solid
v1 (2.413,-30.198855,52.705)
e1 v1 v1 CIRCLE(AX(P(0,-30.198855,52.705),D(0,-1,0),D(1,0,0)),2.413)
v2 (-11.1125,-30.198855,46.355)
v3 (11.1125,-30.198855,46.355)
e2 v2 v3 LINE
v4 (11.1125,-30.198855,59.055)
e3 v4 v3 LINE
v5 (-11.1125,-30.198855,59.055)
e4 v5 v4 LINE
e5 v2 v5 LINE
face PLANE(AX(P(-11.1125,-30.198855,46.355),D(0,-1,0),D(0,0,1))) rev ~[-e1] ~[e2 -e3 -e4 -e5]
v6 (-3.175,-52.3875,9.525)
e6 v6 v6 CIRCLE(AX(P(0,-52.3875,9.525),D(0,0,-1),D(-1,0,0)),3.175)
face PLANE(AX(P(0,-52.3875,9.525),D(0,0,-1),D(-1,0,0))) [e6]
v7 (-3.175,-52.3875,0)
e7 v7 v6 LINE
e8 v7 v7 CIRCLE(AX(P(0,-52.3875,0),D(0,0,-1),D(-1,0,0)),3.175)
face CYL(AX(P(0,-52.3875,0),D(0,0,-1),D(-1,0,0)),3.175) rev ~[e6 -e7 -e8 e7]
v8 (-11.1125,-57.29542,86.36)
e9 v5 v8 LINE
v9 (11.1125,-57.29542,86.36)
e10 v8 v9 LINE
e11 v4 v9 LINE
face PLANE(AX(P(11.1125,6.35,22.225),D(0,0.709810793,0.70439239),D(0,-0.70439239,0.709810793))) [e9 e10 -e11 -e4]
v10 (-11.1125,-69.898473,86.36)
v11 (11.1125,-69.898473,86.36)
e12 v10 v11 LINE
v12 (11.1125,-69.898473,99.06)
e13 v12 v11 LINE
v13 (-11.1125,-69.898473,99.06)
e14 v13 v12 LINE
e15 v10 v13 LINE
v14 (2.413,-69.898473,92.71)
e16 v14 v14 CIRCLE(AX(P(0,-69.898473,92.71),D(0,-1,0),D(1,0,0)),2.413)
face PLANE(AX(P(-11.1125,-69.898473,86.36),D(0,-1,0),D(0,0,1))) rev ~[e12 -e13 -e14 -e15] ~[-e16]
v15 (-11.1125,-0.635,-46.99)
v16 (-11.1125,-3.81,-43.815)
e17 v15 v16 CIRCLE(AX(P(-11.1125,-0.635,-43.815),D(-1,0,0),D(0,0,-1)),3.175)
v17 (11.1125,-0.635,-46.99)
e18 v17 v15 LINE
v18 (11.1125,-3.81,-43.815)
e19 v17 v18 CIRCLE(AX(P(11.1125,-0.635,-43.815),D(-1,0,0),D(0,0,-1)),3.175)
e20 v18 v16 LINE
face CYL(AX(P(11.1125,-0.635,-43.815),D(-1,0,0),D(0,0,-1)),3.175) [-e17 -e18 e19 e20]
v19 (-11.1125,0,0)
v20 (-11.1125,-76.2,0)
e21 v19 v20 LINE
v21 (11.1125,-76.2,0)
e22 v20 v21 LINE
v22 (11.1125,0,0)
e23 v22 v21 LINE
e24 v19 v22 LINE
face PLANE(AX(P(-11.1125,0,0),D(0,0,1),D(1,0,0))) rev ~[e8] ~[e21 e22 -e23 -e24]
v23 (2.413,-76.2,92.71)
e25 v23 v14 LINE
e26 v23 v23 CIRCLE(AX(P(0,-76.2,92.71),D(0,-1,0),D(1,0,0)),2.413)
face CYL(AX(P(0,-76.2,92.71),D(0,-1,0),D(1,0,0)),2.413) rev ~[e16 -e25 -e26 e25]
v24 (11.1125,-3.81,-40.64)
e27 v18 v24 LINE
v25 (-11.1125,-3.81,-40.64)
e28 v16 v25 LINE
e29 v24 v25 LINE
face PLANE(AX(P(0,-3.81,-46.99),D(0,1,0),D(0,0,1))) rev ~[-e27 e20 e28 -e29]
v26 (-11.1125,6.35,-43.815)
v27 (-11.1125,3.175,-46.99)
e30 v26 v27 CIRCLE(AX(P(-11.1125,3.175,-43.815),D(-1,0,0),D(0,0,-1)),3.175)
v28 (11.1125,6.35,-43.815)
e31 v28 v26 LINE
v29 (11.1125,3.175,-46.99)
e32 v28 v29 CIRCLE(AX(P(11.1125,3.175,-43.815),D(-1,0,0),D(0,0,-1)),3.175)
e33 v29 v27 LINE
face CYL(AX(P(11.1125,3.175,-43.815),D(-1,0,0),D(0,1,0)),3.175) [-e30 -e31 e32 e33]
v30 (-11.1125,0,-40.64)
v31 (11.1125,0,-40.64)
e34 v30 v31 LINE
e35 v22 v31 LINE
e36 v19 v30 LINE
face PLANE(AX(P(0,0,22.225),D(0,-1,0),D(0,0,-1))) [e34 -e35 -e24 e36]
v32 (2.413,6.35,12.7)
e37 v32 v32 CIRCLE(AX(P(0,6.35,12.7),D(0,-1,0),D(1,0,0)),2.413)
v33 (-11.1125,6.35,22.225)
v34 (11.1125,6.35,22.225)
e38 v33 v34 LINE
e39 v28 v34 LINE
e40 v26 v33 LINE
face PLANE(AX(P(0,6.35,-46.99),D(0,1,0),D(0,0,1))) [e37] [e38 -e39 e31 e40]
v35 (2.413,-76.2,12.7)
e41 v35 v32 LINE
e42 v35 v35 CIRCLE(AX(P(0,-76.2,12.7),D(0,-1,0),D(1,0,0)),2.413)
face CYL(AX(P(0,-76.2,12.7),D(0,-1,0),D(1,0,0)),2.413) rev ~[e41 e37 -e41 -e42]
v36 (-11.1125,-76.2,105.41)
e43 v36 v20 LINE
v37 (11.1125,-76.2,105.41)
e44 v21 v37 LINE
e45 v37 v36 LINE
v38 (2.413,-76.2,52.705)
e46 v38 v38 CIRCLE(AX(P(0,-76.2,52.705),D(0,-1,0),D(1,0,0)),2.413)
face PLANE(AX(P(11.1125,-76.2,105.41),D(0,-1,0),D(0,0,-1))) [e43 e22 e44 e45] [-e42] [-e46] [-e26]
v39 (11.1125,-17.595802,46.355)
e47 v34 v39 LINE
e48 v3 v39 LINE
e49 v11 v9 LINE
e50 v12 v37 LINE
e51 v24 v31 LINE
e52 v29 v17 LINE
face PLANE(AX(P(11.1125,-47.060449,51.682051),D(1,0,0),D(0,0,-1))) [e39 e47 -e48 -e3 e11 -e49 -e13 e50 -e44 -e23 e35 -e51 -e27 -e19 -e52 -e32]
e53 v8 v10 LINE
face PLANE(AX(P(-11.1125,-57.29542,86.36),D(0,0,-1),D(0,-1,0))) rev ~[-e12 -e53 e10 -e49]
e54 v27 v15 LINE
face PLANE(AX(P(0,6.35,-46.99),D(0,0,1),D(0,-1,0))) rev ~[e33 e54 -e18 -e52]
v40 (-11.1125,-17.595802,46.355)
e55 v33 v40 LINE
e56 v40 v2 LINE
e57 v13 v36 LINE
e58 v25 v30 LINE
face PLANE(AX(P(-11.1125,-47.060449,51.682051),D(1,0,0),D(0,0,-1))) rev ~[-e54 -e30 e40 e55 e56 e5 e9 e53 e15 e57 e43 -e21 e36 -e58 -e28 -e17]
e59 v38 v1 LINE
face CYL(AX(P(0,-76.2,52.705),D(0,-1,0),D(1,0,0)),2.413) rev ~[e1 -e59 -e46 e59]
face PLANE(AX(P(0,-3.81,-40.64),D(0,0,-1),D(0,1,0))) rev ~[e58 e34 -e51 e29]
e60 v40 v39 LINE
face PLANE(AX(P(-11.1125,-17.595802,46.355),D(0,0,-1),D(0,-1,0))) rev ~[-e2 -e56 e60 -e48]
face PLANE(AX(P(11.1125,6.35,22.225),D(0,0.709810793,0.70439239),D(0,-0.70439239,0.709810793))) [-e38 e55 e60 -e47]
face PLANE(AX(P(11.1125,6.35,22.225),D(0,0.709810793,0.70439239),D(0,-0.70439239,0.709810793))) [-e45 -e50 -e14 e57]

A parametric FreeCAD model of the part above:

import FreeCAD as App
import Part
import Sketcher
Q = App.Units.Quantity


def edges_at(feature, points):
    """Names of the edges that pass closest to the given points."""
    edges = feature.Shape.Edges
    near = lambda p: min(range(len(edges)), key=lambda i: edges[i].distToShape(Part.Vertex(*p))[0])
    return sorted({f"Edge{near(p) + 1}" for p in points})

doc = App.newDocument("Part")
body = doc.addObject("PartDesign::Body", "Body")

sketch1 = body.newObject("Sketcher::SketchObject", "Sketch")
sketch1.AttachmentSupport = (doc.getObject("YZ_Plane"), [""])
sketch1.MapMode = "FlatFace"
sketch1.addGeometry(Part.LineSegment(App.Vector(6.35, -46.99, 0), App.Vector(6.35, 22.225, 0)), False)
sketch1.addGeometry(Part.LineSegment(App.Vector(6.35, 22.225, 0), App.Vector(0, 22.225, 0)), False)
sketch1.addGeometry(Part.LineSegment(App.Vector(0, 22.225, 0), App.Vector(0, -40.64, 0)), False)
sketch1.addGeometry(Part.LineSegment(App.Vector(0, -40.64, 0), App.Vector(-3.81, -40.64, 0)), False)
sketch1.addGeometry(Part.LineSegment(App.Vector(-3.81, -40.64, 0), App.Vector(-3.81, -46.99, 0)), False)
sketch1.addGeometry(Part.LineSegment(App.Vector(-3.81, -46.99, 0), App.Vector(6.35, -46.99, 0)), False)
sketch1.addConstraint(Sketcher.Constraint("Coincident", 0, 2, 1, 1))
sketch1.addConstraint(Sketcher.Constraint("Coincident", 1, 2, 2, 1))
sketch1.addConstraint(Sketcher.Constraint("Coincident", 2, 2, 3, 1))
sketch1.addConstraint(Sketcher.Constraint("Coincident", 3, 2, 4, 1))
sketch1.addConstraint(Sketcher.Constraint("Coincident", 4, 2, 5, 1))
sketch1.addConstraint(Sketcher.Constraint("Coincident", 5, 2, 0, 1))
sketch1.addConstraint(Sketcher.Constraint("Vertical", 0))
sketch1.addConstraint(Sketcher.Constraint("Horizontal", 1))
sketch1.addConstraint(Sketcher.Constraint("Vertical", 2))
sketch1.addConstraint(Sketcher.Constraint("Horizontal", 3))
sketch1.addConstraint(Sketcher.Constraint("Vertical", 4))
sketch1.addConstraint(Sketcher.Constraint("Horizontal", 5))
sketch1.addConstraint(Sketcher.Constraint("PointOnObject", 1, 2, -2))
sketch1.addConstraint(Sketcher.Constraint("Equal", 1, 4))
sketch1.addConstraint(Sketcher.Constraint("DistanceX", 5, 1, 5, 2, Q("0.4 in")))
sketch1.addConstraint(Sketcher.Constraint("DistanceX", 1, 2, 1, 1, Q("0.25 in")))
sketch1.addConstraint(Sketcher.Constraint("DistanceY", 2, 2, -1, 1, Q("1.6 in")))
sketch1.addConstraint(Sketcher.Constraint("DistanceY", 0, 1, 0, 2, Q("2.725 in")))
pad1 = body.newObject("PartDesign::Pad", "Pad")
pad1.Profile = sketch1
pad1.Length = Q("0.875 in")
pad1.Midplane = True

sketch2 = body.newObject("Sketcher::SketchObject", "Sketch001")
sketch2.AttachmentSupport = (doc.getObject("XZ_Plane"), [""])
sketch2.MapMode = "FlatFace"
sketch2.addGeometry(Part.LineSegment(App.Vector(-11.1125, 22.225, 0), App.Vector(-11.1125, 0, 0)), False)
sketch2.addGeometry(Part.LineSegment(App.Vector(-11.1125, 0, 0), App.Vector(11.1125, 0, 0)), False)
sketch2.addGeometry(Part.LineSegment(App.Vector(11.1125, 0, 0), App.Vector(11.1125, 22.225, 0)), False)
sketch2.addGeometry(Part.LineSegment(App.Vector(11.1125, 22.225, 0), App.Vector(-11.1125, 22.225, 0)), False)
sketch2.addConstraint(Sketcher.Constraint("Coincident", 0, 2, 1, 1))
sketch2.addConstraint(Sketcher.Constraint("Coincident", 1, 2, 2, 1))
sketch2.addConstraint(Sketcher.Constraint("Coincident", 2, 2, 3, 1))
sketch2.addConstraint(Sketcher.Constraint("Coincident", 3, 2, 0, 1))
sketch2.addConstraint(Sketcher.Constraint("Vertical", 0))
sketch2.addConstraint(Sketcher.Constraint("Horizontal", 1))
sketch2.addConstraint(Sketcher.Constraint("Vertical", 2))
sketch2.addConstraint(Sketcher.Constraint("Horizontal", 3))
sketch2.addConstraint(Sketcher.Constraint("Symmetric", 0, 2, 1, 2, -1, 1))
sketch2.addConstraint(Sketcher.Constraint("Equal", 3, 0))
sketch2.addConstraint(Sketcher.Constraint("DistanceX", 1, 1, 1, 2, Q("0.875 in")))
pad2 = body.newObject("PartDesign::Pad", "Pad001")
pad2.Profile = sketch2
pad2.Length = Q("3 in")

sketch3 = body.newObject("Sketcher::SketchObject", "Sketch002")
sketch3.AttachmentSupport = (doc.getObject("YZ_Plane"), [""])
sketch3.MapMode = "FlatFace"
sketch3.AttachmentOffset = App.Placement(App.Vector(0, 0, 0.4375 * 25.4), App.Rotation())
sketch3.addGeometry(Part.LineSegment(App.Vector(6.35, 22.225, 0), App.Vector(-76.2, 105.41, 0)), False)
sketch3.addGeometry(Part.LineSegment(App.Vector(-76.2, 105.41, 0), App.Vector(-76.2, 22.225, 0)), False)
sketch3.addGeometry(Part.LineSegment(App.Vector(-76.2, 22.225, 0), App.Vector(6.35, 22.225, 0)), False)
sketch3.addConstraint(Sketcher.Constraint("Coincident", 0, 2, 1, 1))
sketch3.addConstraint(Sketcher.Constraint("Coincident", 1, 2, 2, 1))
sketch3.addConstraint(Sketcher.Constraint("Coincident", 2, 2, 0, 1))
sketch3.addConstraint(Sketcher.Constraint("Vertical", 1))
sketch3.addConstraint(Sketcher.Constraint("Horizontal", 2))
sketch3.addConstraint(Sketcher.Constraint("DistanceX", 0, 2, -1, 1, Q("3 in")))
sketch3.addConstraint(Sketcher.Constraint("DistanceX", 2, 1, 2, 2, Q("3.25 in")))
sketch3.addConstraint(Sketcher.Constraint("DistanceY", 1, 2, 1, 1, Q("3.275 in")))
sketch3.addConstraint(Sketcher.Constraint("DistanceY", -1, 1, 0, 2, Q("4.15 in")))
pad3 = body.newObject("PartDesign::Pad", "Pad002")
pad3.Profile = sketch3
pad3.Length = Q("0.875 in")
pad3.Reversed = True

sketch4 = body.newObject("Sketcher::SketchObject", "Sketch003")
sketch4.AttachmentSupport = (doc.getObject("XZ_Plane"), [""])
sketch4.MapMode = "FlatFace"
sketch4.AttachmentOffset = App.Placement(App.Vector(0, 0, 3 * 25.4), App.Rotation())
sketch4.addGeometry(Part.Circle(App.Vector(0, 92.71, 0), App.Vector(0, 0, 1), 2.413), False)
sketch4.addGeometry(Part.Circle(App.Vector(0, 12.7, 0), App.Vector(0, 0, 1), 2.413), False)
sketch4.addGeometry(Part.Circle(App.Vector(0, 52.705, 0), App.Vector(0, 0, 1), 2.413), False)
sketch4.addConstraint(Sketcher.Constraint("Equal", 0, 1))
sketch4.addConstraint(Sketcher.Constraint("Equal", 1, 2))
sketch4.addConstraint(Sketcher.Constraint("PointOnObject", 0, 3, -2))
sketch4.addConstraint(Sketcher.Constraint("PointOnObject", 1, 3, -2))
sketch4.addConstraint(Sketcher.Constraint("PointOnObject", 2, 3, -2))
sketch4.addConstraint(Sketcher.Constraint("Diameter", 0, Q("0.19 in")))
sketch4.addConstraint(Sketcher.Constraint("DistanceY", -1, 1, 1, 3, Q("0.5 in")))
sketch4.addConstraint(Sketcher.Constraint("DistanceY", -1, 1, 0, 3, Q("3.65 in")))
sketch4.addConstraint(Sketcher.Constraint("DistanceY", -1, 1, 2, 3, Q("2.075 in")))
pocket1 = body.newObject("PartDesign::Pocket", "Pocket")
pocket1.Profile = sketch4
pocket1.Type = "ThroughAll"

sketch5 = body.newObject("Sketcher::SketchObject", "Sketch004")
sketch5.AttachmentSupport = (doc.getObject("YZ_Plane"), [""])
sketch5.MapMode = "FlatFace"
sketch5.AttachmentOffset = App.Placement(App.Vector(0, 0, -0.4375 * 25.4), App.Rotation())
sketch5.addGeometry(Part.LineSegment(App.Vector(-17.595802, 46.355, 0), App.Vector(-30.198855, 46.355, 0)), False)
sketch5.addGeometry(Part.LineSegment(App.Vector(-30.198855, 46.355, 0), App.Vector(-30.198855, 59.055, 0)), False)
sketch5.addGeometry(Part.LineSegment(App.Vector(-30.198855, 59.055, 0), App.Vector(-17.595802, 46.355, 0)), False)
sketch5.addGeometry(Part.LineSegment(App.Vector(-57.29542, 86.36, 0), App.Vector(-69.898473, 86.36, 0)), False)
sketch5.addGeometry(Part.LineSegment(App.Vector(-69.898473, 86.36, 0), App.Vector(-69.898473, 99.06, 0)), False)
sketch5.addGeometry(Part.LineSegment(App.Vector(-69.898473, 99.06, 0), App.Vector(-57.29542, 86.36, 0)), False)
sketch5.addConstraint(Sketcher.Constraint("Coincident", 0, 2, 1, 1))
sketch5.addConstraint(Sketcher.Constraint("Coincident", 1, 2, 2, 1))
sketch5.addConstraint(Sketcher.Constraint("Coincident", 2, 2, 0, 1))
sketch5.addConstraint(Sketcher.Constraint("Coincident", 3, 2, 4, 1))
sketch5.addConstraint(Sketcher.Constraint("Coincident", 4, 2, 5, 1))
sketch5.addConstraint(Sketcher.Constraint("Coincident", 5, 2, 3, 1))
sketch5.addConstraint(Sketcher.Constraint("Horizontal", 0))
sketch5.addConstraint(Sketcher.Constraint("Vertical", 1))
sketch5.addConstraint(Sketcher.Constraint("Horizontal", 3))
sketch5.addConstraint(Sketcher.Constraint("Vertical", 4))
sketch5.addConstraint(Sketcher.Constraint("Parallel", 2, 5))
sketch5.addConstraint(Sketcher.Constraint("Equal", 0, 3))
sketch5.addConstraint(Sketcher.Constraint("DistanceY", 1, 1, 1, 2, Q("0.5 in")))
sketch5.addConstraint(Sketcher.Constraint("DistanceY", -1, 1, 3, 2, Q("3.4 in")))
sketch5.addConstraint(Sketcher.Constraint("DistanceY", -1, 1, 0, 2, Q("1.825 in")))
sketch5.addConstraint(Sketcher.Constraint("DistanceX", 2, 2, -1, 1, Q("17.595802 mm")))
sketch5.addConstraint(Sketcher.Constraint("Distance", 2, Q("17.892092 mm")))
sketch5.addConstraint(Sketcher.Constraint("DistanceX", 5, 2, -1, 1, Q("57.29542 mm")))
pocket2 = body.newObject("PartDesign::Pocket", "Pocket001")
pocket2.Profile = sketch5
pocket2.Type = "ThroughAll"
pocket2.Midplane = True
doc.recompute()

fillet = body.newObject("PartDesign::Fillet", "Fillet")
fillet.Base = (pocket2, edges_at(pocket2, [(0, 6.35, -46.99), (0, -3.81, -46.99)]))
fillet.Radius = Q("0.125 in")

sketch6 = body.newObject("Sketcher::SketchObject", "Sketch005")
sketch6.AttachmentSupport = (doc.getObject("XY_Plane"), [""])
sketch6.MapMode = "FlatFace"
sketch6.addGeometry(Part.Circle(App.Vector(0, -52.3875, 0), App.Vector(0, 0, 1), 3.175), False)
sketch6.addConstraint(Sketcher.Constraint("PointOnObject", 0, 3, -2))
sketch6.addConstraint(Sketcher.Constraint("Diameter", 0, Q("0.25 in")))
sketch6.addConstraint(Sketcher.Constraint("DistanceY", 0, 3, -1, 1, Q("2.0625 in")))
pocket3 = body.newObject("PartDesign::Pocket", "Pocket002")
pocket3.Profile = sketch6
pocket3.Length = Q("0.375 in")
pocket3.Reversed = True

doc.recompute()
